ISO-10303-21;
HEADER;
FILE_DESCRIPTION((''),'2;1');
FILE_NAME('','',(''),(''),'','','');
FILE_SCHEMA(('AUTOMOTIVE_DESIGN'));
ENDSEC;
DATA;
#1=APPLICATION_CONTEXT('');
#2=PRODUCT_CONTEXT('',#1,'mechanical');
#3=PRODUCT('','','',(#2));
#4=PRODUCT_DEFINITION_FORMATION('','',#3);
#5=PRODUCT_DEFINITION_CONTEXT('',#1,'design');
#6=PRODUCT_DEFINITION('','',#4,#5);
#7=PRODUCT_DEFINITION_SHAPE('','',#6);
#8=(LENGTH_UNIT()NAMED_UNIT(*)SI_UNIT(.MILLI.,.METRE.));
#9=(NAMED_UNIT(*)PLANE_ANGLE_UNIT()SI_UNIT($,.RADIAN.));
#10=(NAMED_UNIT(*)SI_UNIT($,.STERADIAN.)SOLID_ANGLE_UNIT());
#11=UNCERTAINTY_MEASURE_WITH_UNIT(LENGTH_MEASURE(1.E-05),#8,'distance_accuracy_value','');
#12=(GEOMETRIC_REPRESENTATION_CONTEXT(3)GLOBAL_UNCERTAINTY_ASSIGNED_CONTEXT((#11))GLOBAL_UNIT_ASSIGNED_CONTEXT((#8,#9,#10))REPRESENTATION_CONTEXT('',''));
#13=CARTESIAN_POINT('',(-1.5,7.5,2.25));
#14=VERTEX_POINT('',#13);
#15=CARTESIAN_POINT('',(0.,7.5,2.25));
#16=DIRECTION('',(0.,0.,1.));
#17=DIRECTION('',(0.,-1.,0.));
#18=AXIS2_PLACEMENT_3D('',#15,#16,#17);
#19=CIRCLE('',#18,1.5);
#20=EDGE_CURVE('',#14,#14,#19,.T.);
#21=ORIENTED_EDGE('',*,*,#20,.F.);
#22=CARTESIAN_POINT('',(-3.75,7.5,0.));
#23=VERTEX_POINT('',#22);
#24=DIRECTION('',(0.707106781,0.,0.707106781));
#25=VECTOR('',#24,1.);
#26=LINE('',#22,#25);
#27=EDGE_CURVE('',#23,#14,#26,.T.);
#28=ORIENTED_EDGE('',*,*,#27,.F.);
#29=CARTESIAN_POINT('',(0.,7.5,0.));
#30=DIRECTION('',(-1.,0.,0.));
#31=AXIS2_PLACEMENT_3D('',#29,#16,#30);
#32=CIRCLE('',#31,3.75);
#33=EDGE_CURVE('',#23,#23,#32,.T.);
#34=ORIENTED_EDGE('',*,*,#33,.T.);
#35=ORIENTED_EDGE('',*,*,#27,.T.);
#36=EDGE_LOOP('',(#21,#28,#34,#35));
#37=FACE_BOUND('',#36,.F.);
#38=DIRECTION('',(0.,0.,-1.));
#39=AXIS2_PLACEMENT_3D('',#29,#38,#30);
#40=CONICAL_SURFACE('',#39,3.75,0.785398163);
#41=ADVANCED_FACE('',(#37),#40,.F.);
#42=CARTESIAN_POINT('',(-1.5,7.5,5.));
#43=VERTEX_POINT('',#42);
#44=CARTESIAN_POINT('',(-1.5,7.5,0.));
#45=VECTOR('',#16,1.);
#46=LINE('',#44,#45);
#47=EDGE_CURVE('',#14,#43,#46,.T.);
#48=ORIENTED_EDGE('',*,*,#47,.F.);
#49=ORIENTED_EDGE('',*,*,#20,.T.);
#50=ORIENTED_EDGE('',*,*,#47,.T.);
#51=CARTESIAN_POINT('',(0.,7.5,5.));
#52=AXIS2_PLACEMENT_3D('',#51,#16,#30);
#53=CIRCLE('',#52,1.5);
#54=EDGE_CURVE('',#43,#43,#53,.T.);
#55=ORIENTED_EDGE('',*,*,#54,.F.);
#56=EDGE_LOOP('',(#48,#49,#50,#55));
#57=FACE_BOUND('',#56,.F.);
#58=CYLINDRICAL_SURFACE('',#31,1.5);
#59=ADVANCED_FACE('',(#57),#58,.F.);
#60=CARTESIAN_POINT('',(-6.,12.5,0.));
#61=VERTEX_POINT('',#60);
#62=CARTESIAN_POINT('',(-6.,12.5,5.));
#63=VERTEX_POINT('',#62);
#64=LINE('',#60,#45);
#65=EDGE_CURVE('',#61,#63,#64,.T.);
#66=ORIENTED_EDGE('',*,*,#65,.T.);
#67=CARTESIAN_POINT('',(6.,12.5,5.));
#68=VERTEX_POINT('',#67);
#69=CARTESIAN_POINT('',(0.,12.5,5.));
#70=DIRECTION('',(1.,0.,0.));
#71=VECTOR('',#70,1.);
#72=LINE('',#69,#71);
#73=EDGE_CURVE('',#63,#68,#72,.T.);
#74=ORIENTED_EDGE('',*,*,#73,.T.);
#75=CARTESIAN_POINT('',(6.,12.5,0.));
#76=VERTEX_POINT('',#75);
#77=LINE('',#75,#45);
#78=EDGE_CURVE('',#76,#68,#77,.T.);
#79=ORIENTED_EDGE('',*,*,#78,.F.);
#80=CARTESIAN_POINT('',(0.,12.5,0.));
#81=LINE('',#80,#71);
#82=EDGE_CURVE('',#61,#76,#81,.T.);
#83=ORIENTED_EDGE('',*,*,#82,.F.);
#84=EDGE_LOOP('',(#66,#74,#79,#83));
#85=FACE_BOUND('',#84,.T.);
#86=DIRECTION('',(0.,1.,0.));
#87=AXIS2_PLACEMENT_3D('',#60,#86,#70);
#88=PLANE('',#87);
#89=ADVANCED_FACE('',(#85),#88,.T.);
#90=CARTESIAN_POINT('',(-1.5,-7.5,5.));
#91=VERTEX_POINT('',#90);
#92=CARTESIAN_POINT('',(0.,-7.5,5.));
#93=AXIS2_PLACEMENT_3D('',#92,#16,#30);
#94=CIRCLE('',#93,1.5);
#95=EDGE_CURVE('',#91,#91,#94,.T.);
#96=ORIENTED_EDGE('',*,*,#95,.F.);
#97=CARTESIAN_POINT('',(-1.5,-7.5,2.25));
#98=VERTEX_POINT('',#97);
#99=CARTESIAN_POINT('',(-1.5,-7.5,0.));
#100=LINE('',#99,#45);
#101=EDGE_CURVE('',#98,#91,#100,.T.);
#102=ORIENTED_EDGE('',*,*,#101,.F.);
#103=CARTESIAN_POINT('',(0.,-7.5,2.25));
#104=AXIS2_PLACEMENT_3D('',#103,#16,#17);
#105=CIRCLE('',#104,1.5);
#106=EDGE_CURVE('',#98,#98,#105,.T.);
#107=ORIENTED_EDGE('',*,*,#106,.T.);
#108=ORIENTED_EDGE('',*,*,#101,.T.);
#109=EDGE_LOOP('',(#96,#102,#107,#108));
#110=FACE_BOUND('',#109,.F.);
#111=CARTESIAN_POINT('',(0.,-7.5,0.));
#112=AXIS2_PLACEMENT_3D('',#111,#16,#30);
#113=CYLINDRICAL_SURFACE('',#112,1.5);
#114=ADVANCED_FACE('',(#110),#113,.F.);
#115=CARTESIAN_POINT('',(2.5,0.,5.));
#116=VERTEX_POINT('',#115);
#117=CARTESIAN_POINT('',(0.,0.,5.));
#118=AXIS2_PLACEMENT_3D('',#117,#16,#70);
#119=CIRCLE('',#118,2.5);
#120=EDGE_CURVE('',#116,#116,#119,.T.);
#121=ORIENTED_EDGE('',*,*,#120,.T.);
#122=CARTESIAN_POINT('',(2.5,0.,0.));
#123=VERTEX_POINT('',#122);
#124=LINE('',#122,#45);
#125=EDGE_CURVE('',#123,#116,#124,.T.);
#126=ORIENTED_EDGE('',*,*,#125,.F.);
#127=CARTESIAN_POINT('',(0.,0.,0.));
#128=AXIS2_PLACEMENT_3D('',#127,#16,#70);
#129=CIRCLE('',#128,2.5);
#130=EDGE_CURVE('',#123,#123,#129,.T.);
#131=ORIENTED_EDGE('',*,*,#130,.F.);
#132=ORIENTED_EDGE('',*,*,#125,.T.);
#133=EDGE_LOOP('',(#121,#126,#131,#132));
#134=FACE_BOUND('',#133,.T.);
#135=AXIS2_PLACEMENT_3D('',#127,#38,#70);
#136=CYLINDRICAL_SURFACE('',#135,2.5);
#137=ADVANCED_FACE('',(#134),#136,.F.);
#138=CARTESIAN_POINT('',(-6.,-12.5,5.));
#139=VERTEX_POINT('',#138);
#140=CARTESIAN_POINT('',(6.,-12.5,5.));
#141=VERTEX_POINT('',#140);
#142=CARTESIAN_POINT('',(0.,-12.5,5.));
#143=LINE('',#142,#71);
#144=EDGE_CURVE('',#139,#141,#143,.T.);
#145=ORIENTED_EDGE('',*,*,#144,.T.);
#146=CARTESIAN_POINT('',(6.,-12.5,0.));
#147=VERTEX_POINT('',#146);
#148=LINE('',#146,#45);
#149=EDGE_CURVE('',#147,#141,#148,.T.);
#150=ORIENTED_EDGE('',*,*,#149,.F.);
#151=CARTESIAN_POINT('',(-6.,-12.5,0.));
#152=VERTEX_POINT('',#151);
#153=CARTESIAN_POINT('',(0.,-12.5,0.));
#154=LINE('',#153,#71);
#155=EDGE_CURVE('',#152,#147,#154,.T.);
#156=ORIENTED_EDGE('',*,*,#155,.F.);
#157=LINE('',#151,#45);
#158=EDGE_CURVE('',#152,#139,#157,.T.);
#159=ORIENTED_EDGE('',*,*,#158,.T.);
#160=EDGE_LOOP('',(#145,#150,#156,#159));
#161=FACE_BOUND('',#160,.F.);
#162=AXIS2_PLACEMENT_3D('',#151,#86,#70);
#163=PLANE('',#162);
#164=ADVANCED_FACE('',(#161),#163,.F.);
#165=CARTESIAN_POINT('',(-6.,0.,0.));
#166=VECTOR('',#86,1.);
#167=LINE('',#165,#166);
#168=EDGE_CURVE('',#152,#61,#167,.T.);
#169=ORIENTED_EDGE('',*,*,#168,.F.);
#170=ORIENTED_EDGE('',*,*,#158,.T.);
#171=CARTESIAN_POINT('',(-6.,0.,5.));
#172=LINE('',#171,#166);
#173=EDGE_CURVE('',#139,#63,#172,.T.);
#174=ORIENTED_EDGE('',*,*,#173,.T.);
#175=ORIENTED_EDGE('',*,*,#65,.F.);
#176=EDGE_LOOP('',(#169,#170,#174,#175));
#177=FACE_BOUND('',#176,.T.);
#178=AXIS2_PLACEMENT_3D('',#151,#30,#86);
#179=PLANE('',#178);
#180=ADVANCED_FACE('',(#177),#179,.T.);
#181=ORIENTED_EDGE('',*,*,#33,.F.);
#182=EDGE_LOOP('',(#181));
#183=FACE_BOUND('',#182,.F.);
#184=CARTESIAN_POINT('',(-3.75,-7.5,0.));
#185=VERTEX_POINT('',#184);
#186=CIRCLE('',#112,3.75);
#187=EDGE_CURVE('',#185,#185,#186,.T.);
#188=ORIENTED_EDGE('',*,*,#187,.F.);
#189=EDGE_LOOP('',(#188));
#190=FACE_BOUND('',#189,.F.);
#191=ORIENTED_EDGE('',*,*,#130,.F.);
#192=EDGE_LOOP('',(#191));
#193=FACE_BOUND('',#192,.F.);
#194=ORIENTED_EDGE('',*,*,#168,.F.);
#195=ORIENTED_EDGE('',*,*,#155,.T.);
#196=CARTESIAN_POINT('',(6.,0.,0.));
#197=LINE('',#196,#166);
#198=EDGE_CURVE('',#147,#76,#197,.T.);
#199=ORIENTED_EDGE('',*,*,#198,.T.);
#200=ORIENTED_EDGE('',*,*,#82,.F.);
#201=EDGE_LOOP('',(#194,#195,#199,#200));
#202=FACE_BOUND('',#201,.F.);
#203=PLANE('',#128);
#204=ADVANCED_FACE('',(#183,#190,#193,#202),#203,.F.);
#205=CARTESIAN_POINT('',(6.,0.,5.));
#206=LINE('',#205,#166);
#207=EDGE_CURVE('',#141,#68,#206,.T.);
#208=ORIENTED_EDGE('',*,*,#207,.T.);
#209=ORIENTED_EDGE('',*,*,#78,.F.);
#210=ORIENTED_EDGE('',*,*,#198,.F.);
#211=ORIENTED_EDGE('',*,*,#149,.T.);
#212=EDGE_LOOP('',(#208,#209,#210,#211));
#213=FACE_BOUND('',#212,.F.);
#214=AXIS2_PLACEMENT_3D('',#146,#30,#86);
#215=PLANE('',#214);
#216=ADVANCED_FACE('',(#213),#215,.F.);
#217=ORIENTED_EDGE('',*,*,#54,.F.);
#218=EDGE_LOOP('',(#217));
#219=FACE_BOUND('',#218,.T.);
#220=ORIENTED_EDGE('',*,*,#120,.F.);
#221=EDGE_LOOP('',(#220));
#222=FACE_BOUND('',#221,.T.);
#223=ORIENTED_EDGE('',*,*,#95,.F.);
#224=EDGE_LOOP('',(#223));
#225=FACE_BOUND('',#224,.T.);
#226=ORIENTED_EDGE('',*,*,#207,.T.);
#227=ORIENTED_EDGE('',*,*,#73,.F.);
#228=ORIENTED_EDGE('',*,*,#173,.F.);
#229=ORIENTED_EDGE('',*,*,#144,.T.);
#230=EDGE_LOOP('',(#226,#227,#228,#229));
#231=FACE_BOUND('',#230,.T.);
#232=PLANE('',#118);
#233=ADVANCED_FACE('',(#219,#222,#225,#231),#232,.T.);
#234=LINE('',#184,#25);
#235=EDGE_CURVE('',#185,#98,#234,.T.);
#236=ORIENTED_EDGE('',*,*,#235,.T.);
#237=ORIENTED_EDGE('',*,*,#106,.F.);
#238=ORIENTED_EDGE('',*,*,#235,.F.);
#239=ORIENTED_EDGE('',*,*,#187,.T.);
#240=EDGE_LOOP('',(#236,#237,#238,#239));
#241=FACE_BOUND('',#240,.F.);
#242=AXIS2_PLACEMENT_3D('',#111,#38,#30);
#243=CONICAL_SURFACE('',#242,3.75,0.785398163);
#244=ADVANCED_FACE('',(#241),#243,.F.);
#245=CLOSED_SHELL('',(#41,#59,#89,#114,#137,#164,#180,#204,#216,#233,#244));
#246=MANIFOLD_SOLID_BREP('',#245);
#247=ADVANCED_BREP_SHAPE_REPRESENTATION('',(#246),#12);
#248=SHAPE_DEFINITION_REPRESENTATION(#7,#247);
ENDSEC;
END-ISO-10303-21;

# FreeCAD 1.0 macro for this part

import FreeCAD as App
import Part
import Sketcher

V = App.Vector
Q = App.Units.Quantity

doc = App.newDocument("Part")
body = doc.addObject("PartDesign::Body", "Body")

# Sketch on XY plane
sketch1 = body.newObject("Sketcher::SketchObject", "Sketch")
sketch1.AttachmentSupport = (doc.getObject("XY_Plane"), [""])
sketch1.MapMode = "FlatFace"
sketch1.addGeometry([
    Part.LineSegment(V(-6, 12.5, 0), V(-6, -12.5, 0)),  # 0
    Part.LineSegment(V(-6, -12.5, 0), V(6, -12.5, 0)),  # 1
    Part.LineSegment(V(6, -12.5, 0), V(6, 12.5, 0)),  # 2
    Part.LineSegment(V(6, 12.5, 0), V(-6, 12.5, 0)),  # 3
    Part.Circle(V(0, 0, 0), V(0, 0, 1), 2.5),  # 4
], False)
sketch1.addConstraint([
    Sketcher.Constraint("Coincident", 0, 2, 1, 1),
    Sketcher.Constraint("Coincident", 1, 2, 2, 1),
    Sketcher.Constraint("Coincident", 2, 2, 3, 1),
    Sketcher.Constraint("Coincident", 3, 2, 0, 1),
    Sketcher.Constraint("Vertical", 0),
    Sketcher.Constraint("Horizontal", 1),
    Sketcher.Constraint("Vertical", 2),
    Sketcher.Constraint("Horizontal", 3),
    Sketcher.Constraint("Coincident", 4, 3, -1, 1),
    Sketcher.Constraint("Symmetric", 0, 2, 2, 2, -1, 1),
    Sketcher.Constraint("Diameter", 4, Q("5 mm")),
    Sketcher.Constraint("DistanceX", 1, 1, 1, 2, Q("12 mm")),
    Sketcher.Constraint("DistanceY", 0, 2, 0, 1, Q("25 mm")),
])
pad1 = body.newObject("PartDesign::Pad", "Pad")
pad1.Profile = sketch1
pad1.Length = 5

# Sketch on XY plane
sketch2 = body.newObject("Sketcher::SketchObject", "Sketch001")
sketch2.AttachmentSupport = (doc.getObject("XY_Plane"), [""])
sketch2.MapMode = "FlatFace"
sketch2.addGeometry([
    Part.Circle(V(0, -7.5, 0), V(0, 0, 1), 1.5),
    Part.Circle(V(0, 7.5, 0), V(0, 0, 1), 1.5),
], False)
sketch2.addConstraint([
    Sketcher.Constraint("Equal", 0, 1),
    Sketcher.Constraint("Symmetric", 0, 3, 1, 3, -1, 1),
    Sketcher.Constraint("PointOnObject", 0, 3, -2),
    Sketcher.Constraint("Diameter", 0, Q("3 mm")),
    Sketcher.Constraint("DistanceY", 0, 3, 1, 3, Q("15 mm")),
])
doc.recompute()
hole = body.newObject("PartDesign::Hole", "Hole")
hole.Profile = sketch2
hole.ThreadType = "None"
hole.Diameter = 3
hole.DepthType = "ThroughAll"
hole.HoleCutType = "Countersink"
hole.HoleCutDiameter = 7.5
hole.HoleCutCountersinkAngle = 90
hole.Reversed = True

doc.recompute()
